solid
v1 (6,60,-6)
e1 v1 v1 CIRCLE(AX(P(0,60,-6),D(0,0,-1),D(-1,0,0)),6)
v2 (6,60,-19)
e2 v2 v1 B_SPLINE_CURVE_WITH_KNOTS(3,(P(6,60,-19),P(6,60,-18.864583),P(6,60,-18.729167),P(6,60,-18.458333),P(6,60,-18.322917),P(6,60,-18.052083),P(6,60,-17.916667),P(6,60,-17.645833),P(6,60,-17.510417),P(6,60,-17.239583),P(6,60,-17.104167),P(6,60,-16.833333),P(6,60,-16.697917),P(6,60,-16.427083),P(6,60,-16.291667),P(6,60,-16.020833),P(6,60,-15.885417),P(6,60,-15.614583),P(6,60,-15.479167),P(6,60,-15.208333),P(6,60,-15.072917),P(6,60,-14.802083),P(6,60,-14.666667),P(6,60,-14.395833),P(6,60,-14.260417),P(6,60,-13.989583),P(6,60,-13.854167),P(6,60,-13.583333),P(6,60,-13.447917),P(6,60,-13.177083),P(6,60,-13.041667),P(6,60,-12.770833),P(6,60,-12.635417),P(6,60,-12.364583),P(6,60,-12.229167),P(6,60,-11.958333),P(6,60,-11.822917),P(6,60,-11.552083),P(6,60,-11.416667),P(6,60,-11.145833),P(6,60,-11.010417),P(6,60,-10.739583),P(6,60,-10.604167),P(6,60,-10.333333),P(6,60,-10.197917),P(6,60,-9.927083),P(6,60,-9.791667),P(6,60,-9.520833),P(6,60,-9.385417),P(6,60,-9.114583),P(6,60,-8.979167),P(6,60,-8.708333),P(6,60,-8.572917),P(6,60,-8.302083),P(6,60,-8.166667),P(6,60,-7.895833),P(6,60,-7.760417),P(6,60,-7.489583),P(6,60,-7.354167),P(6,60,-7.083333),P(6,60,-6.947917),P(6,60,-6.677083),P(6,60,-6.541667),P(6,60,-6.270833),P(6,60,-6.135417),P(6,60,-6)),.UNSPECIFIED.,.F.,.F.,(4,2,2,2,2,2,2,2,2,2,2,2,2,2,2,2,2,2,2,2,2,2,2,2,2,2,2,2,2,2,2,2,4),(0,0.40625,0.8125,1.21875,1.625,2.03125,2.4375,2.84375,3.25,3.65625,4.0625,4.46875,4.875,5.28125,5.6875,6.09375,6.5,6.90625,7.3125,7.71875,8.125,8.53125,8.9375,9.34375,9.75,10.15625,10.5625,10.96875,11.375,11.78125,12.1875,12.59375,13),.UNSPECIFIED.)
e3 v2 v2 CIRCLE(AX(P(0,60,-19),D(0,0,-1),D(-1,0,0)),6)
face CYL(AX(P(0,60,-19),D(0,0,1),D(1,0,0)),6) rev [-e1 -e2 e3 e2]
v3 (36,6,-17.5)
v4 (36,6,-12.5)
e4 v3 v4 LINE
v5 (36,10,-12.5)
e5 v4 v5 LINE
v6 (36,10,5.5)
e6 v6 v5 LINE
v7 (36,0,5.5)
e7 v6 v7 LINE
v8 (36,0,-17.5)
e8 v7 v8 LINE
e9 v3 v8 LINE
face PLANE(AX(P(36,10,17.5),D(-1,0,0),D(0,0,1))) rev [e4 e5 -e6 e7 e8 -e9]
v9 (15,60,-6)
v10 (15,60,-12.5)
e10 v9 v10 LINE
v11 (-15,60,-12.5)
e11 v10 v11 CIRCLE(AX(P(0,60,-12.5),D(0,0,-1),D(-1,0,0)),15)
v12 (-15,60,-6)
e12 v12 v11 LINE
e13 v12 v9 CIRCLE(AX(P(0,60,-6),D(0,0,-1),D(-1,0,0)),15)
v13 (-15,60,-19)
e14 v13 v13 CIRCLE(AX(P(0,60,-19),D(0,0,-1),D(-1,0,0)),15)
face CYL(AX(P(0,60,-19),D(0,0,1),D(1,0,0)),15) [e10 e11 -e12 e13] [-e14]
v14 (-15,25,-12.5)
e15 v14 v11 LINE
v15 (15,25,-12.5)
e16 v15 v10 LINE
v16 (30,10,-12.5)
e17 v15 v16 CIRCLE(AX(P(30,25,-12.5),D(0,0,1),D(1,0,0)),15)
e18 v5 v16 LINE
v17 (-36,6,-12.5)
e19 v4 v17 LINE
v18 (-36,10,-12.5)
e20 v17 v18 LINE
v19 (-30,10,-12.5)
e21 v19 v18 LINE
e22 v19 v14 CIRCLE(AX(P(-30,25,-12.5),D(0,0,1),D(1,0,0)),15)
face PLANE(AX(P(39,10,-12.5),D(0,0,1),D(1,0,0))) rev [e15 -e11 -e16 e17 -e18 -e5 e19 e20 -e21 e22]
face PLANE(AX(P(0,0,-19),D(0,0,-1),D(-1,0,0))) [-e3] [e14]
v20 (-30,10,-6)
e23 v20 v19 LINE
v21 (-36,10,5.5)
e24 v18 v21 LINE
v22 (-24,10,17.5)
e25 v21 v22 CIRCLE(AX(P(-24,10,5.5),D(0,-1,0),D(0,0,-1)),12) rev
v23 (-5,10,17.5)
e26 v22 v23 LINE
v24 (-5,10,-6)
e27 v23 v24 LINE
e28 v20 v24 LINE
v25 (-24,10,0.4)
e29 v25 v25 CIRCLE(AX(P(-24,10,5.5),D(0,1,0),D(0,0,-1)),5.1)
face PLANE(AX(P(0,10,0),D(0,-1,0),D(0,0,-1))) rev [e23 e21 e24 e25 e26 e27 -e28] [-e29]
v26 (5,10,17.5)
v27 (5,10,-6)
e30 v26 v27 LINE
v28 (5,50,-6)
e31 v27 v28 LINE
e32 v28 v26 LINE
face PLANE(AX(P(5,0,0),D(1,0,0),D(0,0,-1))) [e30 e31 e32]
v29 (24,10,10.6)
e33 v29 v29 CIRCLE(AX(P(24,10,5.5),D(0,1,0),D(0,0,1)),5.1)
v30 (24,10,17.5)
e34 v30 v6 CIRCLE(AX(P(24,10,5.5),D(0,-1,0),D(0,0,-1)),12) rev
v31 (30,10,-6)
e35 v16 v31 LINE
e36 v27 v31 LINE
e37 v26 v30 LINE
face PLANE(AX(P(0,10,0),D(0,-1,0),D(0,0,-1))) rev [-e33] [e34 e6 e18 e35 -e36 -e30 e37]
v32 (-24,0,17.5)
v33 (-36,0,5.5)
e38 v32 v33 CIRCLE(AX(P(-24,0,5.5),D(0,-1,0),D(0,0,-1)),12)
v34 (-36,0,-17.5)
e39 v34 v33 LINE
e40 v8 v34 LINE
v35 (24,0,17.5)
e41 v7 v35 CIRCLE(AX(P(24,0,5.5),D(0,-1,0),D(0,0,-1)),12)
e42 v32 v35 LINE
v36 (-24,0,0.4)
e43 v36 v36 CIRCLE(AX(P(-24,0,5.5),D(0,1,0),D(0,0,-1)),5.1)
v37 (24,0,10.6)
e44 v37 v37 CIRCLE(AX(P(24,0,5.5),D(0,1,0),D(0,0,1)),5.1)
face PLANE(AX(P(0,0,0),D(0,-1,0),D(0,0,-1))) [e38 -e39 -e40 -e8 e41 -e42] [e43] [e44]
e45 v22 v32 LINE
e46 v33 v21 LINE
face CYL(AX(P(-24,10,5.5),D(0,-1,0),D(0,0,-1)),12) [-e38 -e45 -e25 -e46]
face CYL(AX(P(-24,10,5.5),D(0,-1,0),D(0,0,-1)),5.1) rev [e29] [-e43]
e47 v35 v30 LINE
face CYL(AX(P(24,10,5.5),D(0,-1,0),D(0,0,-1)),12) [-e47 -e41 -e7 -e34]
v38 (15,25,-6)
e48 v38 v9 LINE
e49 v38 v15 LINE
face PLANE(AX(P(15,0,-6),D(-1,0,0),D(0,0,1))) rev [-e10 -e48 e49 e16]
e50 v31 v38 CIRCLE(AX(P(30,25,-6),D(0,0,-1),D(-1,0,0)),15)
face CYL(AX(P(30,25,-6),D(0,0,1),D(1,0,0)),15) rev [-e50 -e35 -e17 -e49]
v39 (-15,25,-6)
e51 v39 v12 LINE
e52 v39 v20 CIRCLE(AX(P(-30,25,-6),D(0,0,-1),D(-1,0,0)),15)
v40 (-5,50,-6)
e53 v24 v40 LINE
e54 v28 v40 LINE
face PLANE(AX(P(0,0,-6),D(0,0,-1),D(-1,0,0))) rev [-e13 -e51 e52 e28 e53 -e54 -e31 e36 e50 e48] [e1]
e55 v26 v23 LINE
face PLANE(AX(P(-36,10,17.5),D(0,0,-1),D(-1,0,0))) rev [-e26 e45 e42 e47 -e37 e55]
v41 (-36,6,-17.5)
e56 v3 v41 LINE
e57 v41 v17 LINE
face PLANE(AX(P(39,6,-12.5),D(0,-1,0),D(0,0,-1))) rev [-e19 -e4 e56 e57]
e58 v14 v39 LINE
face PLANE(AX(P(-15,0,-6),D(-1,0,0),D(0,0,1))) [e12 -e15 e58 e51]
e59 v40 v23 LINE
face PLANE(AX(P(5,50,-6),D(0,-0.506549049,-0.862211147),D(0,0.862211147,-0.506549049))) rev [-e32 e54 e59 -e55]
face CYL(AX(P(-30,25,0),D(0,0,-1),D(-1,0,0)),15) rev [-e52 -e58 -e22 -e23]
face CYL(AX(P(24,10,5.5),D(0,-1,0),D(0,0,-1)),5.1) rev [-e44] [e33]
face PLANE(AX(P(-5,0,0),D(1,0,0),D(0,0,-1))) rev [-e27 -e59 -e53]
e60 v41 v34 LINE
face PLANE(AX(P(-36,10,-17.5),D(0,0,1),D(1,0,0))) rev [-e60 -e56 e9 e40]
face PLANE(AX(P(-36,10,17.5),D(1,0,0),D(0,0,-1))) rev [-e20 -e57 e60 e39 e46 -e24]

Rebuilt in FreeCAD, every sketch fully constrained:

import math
import FreeCAD as App
import Part
import Sketcher

V = App.Vector


def edges_at(feature, points):
    """Names of the edges that pass closest to the given points."""
    edges = feature.Shape.Edges
    near = lambda p: min(range(len(edges)), key=lambda i: edges[i].distToShape(Part.Vertex(*p))[0])
    return sorted({f"Edge{near(p) + 1}" for p in points})

doc = App.newDocument("Part")
body = doc.addObject("PartDesign::Body", "Body")

# Sketch on XZ plane
sketch1 = body.newObject("Sketcher::SketchObject", "Sketch")
sketch1.AttachmentSupport = (doc.getObject("XZ_Plane"), [""])
sketch1.MapMode = "FlatFace"
sketch1.addGeometry([
    Part.LineSegment(V(-36, -18, 0), V(-36, 18, 0)),  # 0
    Part.LineSegment(V(-36, 18, 0), V(36, 18, 0)),  # 1
    Part.LineSegment(V(36, 18, 0), V(36, -18, 0)),  # 2
    Part.LineSegment(V(36, -18, 0), V(-36, -18, 0)),  # 3
    Part.Circle(V(-24, 6, 0), V(0, 0, 1), 5),  # 4
    Part.Circle(V(24, 6, 0), V(0, 0, 1), 5),  # 5
], False)
sketch1.addConstraint([
    Sketcher.Constraint("Coincident", 0, 2, 1, 1),
    Sketcher.Constraint("Coincident", 1, 2, 2, 1),
    Sketcher.Constraint("Coincident", 2, 2, 3, 1),
    Sketcher.Constraint("Coincident", 3, 2, 0, 1),
    Sketcher.Constraint("Vertical", 0),
    Sketcher.Constraint("Horizontal", 1),
    Sketcher.Constraint("Vertical", 2),
    Sketcher.Constraint("Horizontal", 3),
    Sketcher.Constraint("Equal", 4, 5),
    Sketcher.Constraint("Symmetric", 0, 2, 2, 2, -1, 1),
    Sketcher.Constraint("Symmetric", 4, 3, 5, 3, -2),
    Sketcher.Constraint("Diameter", 4, 10.2),
    Sketcher.Constraint("DistanceX", 1, 1, 1, 2, 72.0),
    Sketcher.Constraint("DistanceY", 0, 1, 0, 2, 35.0),
    Sketcher.Constraint("DistanceX", 4, 3, -1, 1, 24.0),
    Sketcher.Constraint("DistanceY", 4, 3, 0, 2, 12.0),
])
pad1 = body.newObject("PartDesign::Pad", "Pad")
pad1.Profile = sketch1
pad1.Length = 10
pad1.Reversed = True
doc.recompute()

fillet = body.newObject("PartDesign::Fillet", "Fillet")
fillet.Base = (pad1, edges_at(pad1, [(36, 5, 17.5), (-36, 5, 17.5)]))
fillet.Radius = 12

# Sketch on YZ plane
sketch2 = body.newObject("Sketcher::SketchObject", "Sketch001")
sketch2.AttachmentSupport = (doc.getObject("YZ_Plane"), [""])
sketch2.MapMode = "FlatFace"
sketch2.AttachmentOffset = App.Placement(V(0, 0, -36), App.Rotation())
sketch2.addGeometry([
    Part.LineSegment(V(10, -17.5, 0), V(6, -17.5, 0)),
    Part.LineSegment(V(6, -17.5, 0), V(6, -12.5, 0)),
    Part.LineSegment(V(6, -12.5, 0), V(10, -12.5, 0)),
    Part.LineSegment(V(10, -12.5, 0), V(10, -17.5, 0)),
], False)
sketch2.addConstraint([
    Sketcher.Constraint("Coincident", 0, 2, 1, 1),
    Sketcher.Constraint("Coincident", 1, 2, 2, 1),
    Sketcher.Constraint("Coincident", 2, 2, 3, 1),
    Sketcher.Constraint("Coincident", 3, 2, 0, 1),
    Sketcher.Constraint("Horizontal", 0),
    Sketcher.Constraint("Vertical", 1),
    Sketcher.Constraint("Horizontal", 2),
    Sketcher.Constraint("Vertical", 3),
    Sketcher.Constraint("DistanceX", 0, 2, 0, 1, 4.0),
    Sketcher.Constraint("DistanceY", 1, 1, 1, 2, 5.0),
    Sketcher.Constraint("DistanceX", -1, 1, 0, 2, 6.0),
    Sketcher.Constraint("DistanceY", 0, 2, -1, 1, 17.5),
])
pocket1 = body.newObject("PartDesign::Pocket", "Pocket")
pocket1.Profile = sketch2
pocket1.Length = 75
pocket1.Reversed = True
body2 = doc.addObject("PartDesign::Body", "Body001")

# Sketch on XY plane
sketch3 = body2.newObject("Sketcher::SketchObject", "Sketch002")
sketch3.AttachmentSupport = (doc.getObject("XY_Plane001"), [""])
sketch3.MapMode = "FlatFace"
sketch3.AttachmentOffset = App.Placement(V(0, 0, -12.5), App.Rotation())
sketch3.addGeometry([
    Part.Circle(V(0, 60, 0), V(0, 0, 1), 15),
    Part.Circle(V(0, 60, 0), V(0, 0, 1), 6),
], False)
sketch3.addConstraint([
    Sketcher.Constraint("Coincident", 1, 3, 0, 3),
    Sketcher.Constraint("PointOnObject", 0, 3, -2),
    Sketcher.Constraint("Diameter", 0, 30.0),
    Sketcher.Constraint("Diameter", 1, 12.0),
    Sketcher.Constraint("DistanceY", -1, 1, 0, 3, 60.0),
])
pad2 = body2.newObject("PartDesign::Pad", "Pad001")
pad2.Profile = sketch3
pad2.Length = 13
pad2.Midplane = True
body.AllowCompound = True
doc.recompute()

boolean = body.newObject("PartDesign::Boolean", "Boolean")
boolean.Type = "Fuse"
boolean.addObjects([body2])

# Sketch on XY plane
sketch4 = body.newObject("Sketcher::SketchObject", "Sketch003")
sketch4.AttachmentSupport = (doc.getObject("XY_Plane"), [""])
sketch4.MapMode = "FlatFace"
sketch4.AttachmentOffset = App.Placement(V(0, 0, -12.5), App.Rotation())
sketch4.addGeometry([
    Part.LineSegment(V(15, 10, 0), V(-15, 10, 0)),
    Part.LineSegment(V(-15, 10, 0), V(-15, 60, 0)),
    Part.ArcOfCircle(Part.Circle(V(0, 60, 0), V(0, 0, 1), 15), math.radians(180), math.radians(360)),
    Part.LineSegment(V(15, 60, 0), V(15, 10, 0)),
], False)
sketch4.addConstraint([
    Sketcher.Constraint("Coincident", 0, 2, 1, 1),
    Sketcher.Constraint("Tangent", 1, 2, 2, 1),
    Sketcher.Constraint("Tangent", 2, 2, 3, 1),
    Sketcher.Constraint("Coincident", 3, 2, 0, 1),
    Sketcher.Constraint("Horizontal", 0),
    Sketcher.Constraint("Vertical", 1),
    Sketcher.Constraint("Vertical", 3),
    Sketcher.Constraint("PointOnObject", 2, 3, -2),
    Sketcher.Constraint("Radius", 2, 15.0),
    Sketcher.Constraint("DistanceY", 1, 1, 1, 2, 50.0),
    Sketcher.Constraint("DistanceY", -1, 1, 2, 3, 60.0),
])
pad3 = body.newObject("PartDesign::Pad", "Pad002")
pad3.Profile = sketch4
pad3.Length = 6.5
doc.recompute()

fillet2 = body.newObject("PartDesign::Fillet", "Fillet001")
fillet2.Base = (pad3, edges_at(pad3, [(-15, 10, -9.25), (15, 10, -9.25)]))
fillet2.Radius = 15

# Sketch on YZ plane
sketch5 = body.newObject("Sketcher::SketchObject", "Sketch004")
sketch5.AttachmentSupport = (doc.getObject("YZ_Plane"), [""])
sketch5.MapMode = "FlatFace"
sketch5.addGeometry([
    Part.LineSegment(V(10, 18, 0), V(10, -6, 0)),
    Part.LineSegment(V(10, -6, 0), V(50, -6, 0)),
    Part.LineSegment(V(50, -6, 0), V(10, 18, 0)),
], False)
sketch5.addConstraint([
    Sketcher.Constraint("Coincident", 0, 2, 1, 1),
    Sketcher.Constraint("Coincident", 1, 2, 2, 1),
    Sketcher.Constraint("Coincident", 2, 2, 0, 1),
    Sketcher.Constraint("Vertical", 0),
    Sketcher.Constraint("Horizontal", 1),
    Sketcher.Constraint("DistanceX", 1, 1, 1, 2, 40.0),
    Sketcher.Constraint("DistanceY", 0, 2, 0, 1, 23.5),
    Sketcher.Constraint("DistanceX", -1, 1, 0, 2, 10.0),
    Sketcher.Constraint("DistanceY", 0, 2, -1, 1, 6.0),
])
pad4 = body.newObject("PartDesign::Pad", "Pad003")
pad4.Profile = sketch5
pad4.Length = 10
pad4.Midplane = True

doc.recompute()
